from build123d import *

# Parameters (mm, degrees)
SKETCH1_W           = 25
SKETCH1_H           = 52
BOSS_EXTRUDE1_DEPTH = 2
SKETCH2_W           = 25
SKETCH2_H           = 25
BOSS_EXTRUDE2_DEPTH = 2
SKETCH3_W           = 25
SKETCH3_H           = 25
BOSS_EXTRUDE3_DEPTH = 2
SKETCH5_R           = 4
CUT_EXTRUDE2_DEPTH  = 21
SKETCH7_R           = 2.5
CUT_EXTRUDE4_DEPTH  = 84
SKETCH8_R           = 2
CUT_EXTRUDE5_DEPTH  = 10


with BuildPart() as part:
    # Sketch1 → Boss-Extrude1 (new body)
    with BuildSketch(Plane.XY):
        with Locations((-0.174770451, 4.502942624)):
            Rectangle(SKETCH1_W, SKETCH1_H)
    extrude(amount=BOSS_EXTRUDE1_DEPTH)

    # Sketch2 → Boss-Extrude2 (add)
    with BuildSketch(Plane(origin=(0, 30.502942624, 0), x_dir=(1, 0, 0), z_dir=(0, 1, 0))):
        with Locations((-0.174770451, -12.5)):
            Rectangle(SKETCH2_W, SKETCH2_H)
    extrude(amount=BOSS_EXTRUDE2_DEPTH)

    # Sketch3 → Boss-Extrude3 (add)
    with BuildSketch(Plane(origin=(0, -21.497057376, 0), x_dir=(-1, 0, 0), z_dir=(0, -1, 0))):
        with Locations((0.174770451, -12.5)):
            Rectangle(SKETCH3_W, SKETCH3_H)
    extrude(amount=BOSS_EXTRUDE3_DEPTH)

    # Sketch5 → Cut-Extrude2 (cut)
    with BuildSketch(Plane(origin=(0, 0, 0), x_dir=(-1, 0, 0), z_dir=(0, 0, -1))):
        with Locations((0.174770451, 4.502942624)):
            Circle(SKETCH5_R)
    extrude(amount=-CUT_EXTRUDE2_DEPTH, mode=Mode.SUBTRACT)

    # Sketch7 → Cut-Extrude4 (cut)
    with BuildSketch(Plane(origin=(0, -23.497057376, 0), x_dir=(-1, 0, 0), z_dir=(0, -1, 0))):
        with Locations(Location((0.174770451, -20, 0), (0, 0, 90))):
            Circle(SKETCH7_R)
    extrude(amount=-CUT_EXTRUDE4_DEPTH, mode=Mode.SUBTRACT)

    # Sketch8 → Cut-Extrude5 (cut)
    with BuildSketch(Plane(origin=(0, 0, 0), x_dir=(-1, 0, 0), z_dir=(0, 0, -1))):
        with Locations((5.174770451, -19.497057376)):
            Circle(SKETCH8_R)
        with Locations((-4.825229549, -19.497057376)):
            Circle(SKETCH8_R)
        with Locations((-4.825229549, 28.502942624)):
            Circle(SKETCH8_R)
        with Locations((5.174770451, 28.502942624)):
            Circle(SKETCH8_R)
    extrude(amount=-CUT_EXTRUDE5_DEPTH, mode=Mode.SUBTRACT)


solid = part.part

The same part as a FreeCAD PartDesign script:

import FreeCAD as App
import Part
import Sketcher

V = App.Vector
Q = App.Units.Quantity


def add_polygon(sketch, points):
    """Adds a closed chain of lines whose ends are joined by coincident constraints."""
    first, n = sketch.GeometryCount, len(points)
    for a, b in zip(points, points[1:] + points[:1]):
        sketch.addGeometry(Part.LineSegment(App.Vector(*a, 0), App.Vector(*b, 0)), False)
    for i in range(n):
        sketch.addConstraint(Sketcher.Constraint("Coincident", first + i, 2, first + (i + 1) % n, 1))

doc = App.newDocument("Part")
body = doc.addObject("PartDesign::Body", "Body")

# Sketch on XY plane
sketch1 = body.newObject("Sketcher::SketchObject", "Sketch")
sketch1.AttachmentSupport = (doc.getObject("XY_Plane"), [""])
sketch1.MapMode = "FlatFace"
add_polygon(sketch1, [(-12.67477, 30.502943), (-12.67477, -21.497057), (12.32523, -21.497057), (12.32523, 30.502943)])  # lines 0-3
sketch1.addConstraint(Sketcher.Constraint("Vertical", 0))
sketch1.addConstraint(Sketcher.Constraint("Horizontal", 1))
sketch1.addConstraint(Sketcher.Constraint("Vertical", 2))
sketch1.addConstraint(Sketcher.Constraint("Horizontal", 3))
sketch1.addConstraint(Sketcher.Constraint("DistanceX", 1, 1, 1, 2, Q("25 mm")))
sketch1.addConstraint(Sketcher.Constraint("DistanceY", 0, 2, 0, 1, Q("52 mm")))
sketch1.addConstraint(Sketcher.Constraint("DistanceX", 0, 2, -1, 1, Q("12.67477 mm")))
sketch1.addConstraint(Sketcher.Constraint("DistanceY", 0, 2, -1, 1, Q("21.497057 mm")))
pad1 = body.newObject("PartDesign::Pad", "Pad")
pad1.Profile = sketch1
pad1.Length = 2

# Sketch on XZ plane
sketch2 = body.newObject("Sketcher::SketchObject", "Sketch001")
sketch2.AttachmentSupport = (doc.getObject("XZ_Plane"), [""])
sketch2.MapMode = "FlatFace"
sketch2.AttachmentOffset = App.Placement(V(0, 0, -30.502943), App.Rotation())
add_polygon(sketch2, [(-12.67477, 0), (-12.67477, 25), (12.32523, 25), (12.32523, 0)])  # lines 0-3
sketch2.addConstraint(Sketcher.Constraint("Vertical", 0))
sketch2.addConstraint(Sketcher.Constraint("Horizontal", 1))
sketch2.addConstraint(Sketcher.Constraint("Vertical", 2))
sketch2.addConstraint(Sketcher.Constraint("Horizontal", 3))
sketch2.addConstraint(Sketcher.Constraint("PointOnObject", 2, 2, -1))
sketch2.addConstraint(Sketcher.Constraint("Equal", 3, 0))
sketch2.addConstraint(Sketcher.Constraint("DistanceX", 1, 1, 1, 2, Q("25 mm")))
sketch2.addConstraint(Sketcher.Constraint("DistanceX", 0, 2, -1, 1, Q("12.67477 mm")))
pad2 = body.newObject("PartDesign::Pad", "Pad001")
pad2.Profile = sketch2
pad2.Length = 2
pad2.Reversed = True

# Sketch on XZ plane
sketch3 = body.newObject("Sketcher::SketchObject", "Sketch002")
sketch3.AttachmentSupport = (doc.getObject("XZ_Plane"), [""])
sketch3.MapMode = "FlatFace"
sketch3.AttachmentOffset = App.Placement(V(0, 0, 21.497057), App.Rotation())
add_polygon(sketch3, [(12.32523, 0), (12.32523, 25), (-12.67477, 25), (-12.67477, 0)])  # lines 0-3
sketch3.addConstraint(Sketcher.Constraint("Vertical", 0))
sketch3.addConstraint(Sketcher.Constraint("Horizontal", 1))
sketch3.addConstraint(Sketcher.Constraint("Vertical", 2))
sketch3.addConstraint(Sketcher.Constraint("Horizontal", 3))
sketch3.addConstraint(Sketcher.Constraint("PointOnObject", 2, 2, -1))
sketch3.addConstraint(Sketcher.Constraint("Equal", 3, 0))
sketch3.addConstraint(Sketcher.Constraint("DistanceX", 1, 2, 1, 1, Q("25 mm")))
sketch3.addConstraint(Sketcher.Constraint("DistanceX", -1, 1, 0, 2, Q("12.32523 mm")))
pad3 = body.newObject("PartDesign::Pad", "Pad002")
pad3.Profile = sketch3
pad3.Length = 2

# Sketch on XY plane
sketch4 = body.newObject("Sketcher::SketchObject", "Sketch003")
sketch4.AttachmentSupport = (doc.getObject("XY_Plane"), [""])
sketch4.MapMode = "FlatFace"
sketch4.addGeometry(Part.Circle(V(-0.17477, 4.502943, 0), V(0, 0, 1), 4), False)
sketch4.addConstraint(Sketcher.Constraint("Diameter", 0, Q("8 mm")))
sketch4.addConstraint(Sketcher.Constraint("DistanceX", 0, 3, -1, 1, Q("0.17477 mm")))
sketch4.addConstraint(Sketcher.Constraint("DistanceY", -1, 1, 0, 3, Q("4.502943 mm")))
pocket1 = body.newObject("PartDesign::Pocket", "Pocket")
pocket1.Profile = sketch4
pocket1.Length = 21
pocket1.Reversed = True

# Sketch on XZ plane
sketch5 = body.newObject("Sketcher::SketchObject", "Sketch004")
sketch5.AttachmentSupport = (doc.getObject("XZ_Plane"), [""])
sketch5.MapMode = "FlatFace"
sketch5.AttachmentOffset = App.Placement(V(0, 0, 23.497057), App.Rotation())
sketch5.addGeometry(Part.Circle(V(-0.17477, 20, 0), V(0, 0, 1), 2.5), False)
sketch5.addConstraint(Sketcher.Constraint("Diameter", 0, Q("5 mm")))
sketch5.addConstraint(Sketcher.Constraint("DistanceY", -1, 1, 0, 3, Q("20 mm")))
sketch5.addConstraint(Sketcher.Constraint("DistanceX", 0, 3, -1, 1, Q("0.17477 mm")))
pocket2 = body.newObject("PartDesign::Pocket", "Pocket001")
pocket2.Profile = sketch5
pocket2.Length = 84

# Sketch on XY plane
sketch6 = body.newObject("Sketcher::SketchObject", "Sketch005")
sketch6.AttachmentSupport = (doc.getObject("XY_Plane"), [""])
sketch6.MapMode = "FlatFace"
sketch6.addGeometry(Part.Circle(V(-5.17477, -19.497057, 0), V(0, 0, 1), 2), False)
sketch6.addGeometry(Part.Circle(V(4.82523, -19.497057, 0), V(0, 0, 1), 2), False)
sketch6.addGeometry(Part.Circle(V(4.82523, 28.502943, 0), V(0, 0, 1), 2), False)
sketch6.addGeometry(Part.Circle(V(-5.17477, 28.502943, 0), V(0, 0, 1), 2), False)
sketch6.addConstraint(Sketcher.Constraint("Equal", 0, 1))
sketch6.addConstraint(Sketcher.Constraint("Equal", 1, 2))
sketch6.addConstraint(Sketcher.Constraint("Equal", 2, 3))
sketch6.addConstraint(Sketcher.Constraint("Horizontal", 0, 3, 1, 3))
sketch6.addConstraint(Sketcher.Constraint("Horizontal", 2, 3, 3, 3))
sketch6.addConstraint(Sketcher.Constraint("Vertical", 1, 3, 2, 3))
sketch6.addConstraint(Sketcher.Constraint("Vertical", 0, 3, 3, 3))
sketch6.addConstraint(Sketcher.Constraint("Diameter", 0, Q("4 mm")))
sketch6.addConstraint(Sketcher.Constraint("DistanceX", 0, 3, 1, 3, Q("10 mm")))
sketch6.addConstraint(Sketcher.Constraint("DistanceY", 1, 3, 2, 3, Q("48 mm")))
sketch6.addConstraint(Sketcher.Constraint("DistanceX", 0, 3, -1, 1, Q("5.17477 mm")))
sketch6.addConstraint(Sketcher.Constraint("DistanceY", 0, 3, -1, 1, Q("19.497057 mm")))
pocket3 = body.newObject("PartDesign::Pocket", "Pocket002")
pocket3.Profile = sketch6
pocket3.Length = 10
pocket3.Reversed = True

doc.recompute()
